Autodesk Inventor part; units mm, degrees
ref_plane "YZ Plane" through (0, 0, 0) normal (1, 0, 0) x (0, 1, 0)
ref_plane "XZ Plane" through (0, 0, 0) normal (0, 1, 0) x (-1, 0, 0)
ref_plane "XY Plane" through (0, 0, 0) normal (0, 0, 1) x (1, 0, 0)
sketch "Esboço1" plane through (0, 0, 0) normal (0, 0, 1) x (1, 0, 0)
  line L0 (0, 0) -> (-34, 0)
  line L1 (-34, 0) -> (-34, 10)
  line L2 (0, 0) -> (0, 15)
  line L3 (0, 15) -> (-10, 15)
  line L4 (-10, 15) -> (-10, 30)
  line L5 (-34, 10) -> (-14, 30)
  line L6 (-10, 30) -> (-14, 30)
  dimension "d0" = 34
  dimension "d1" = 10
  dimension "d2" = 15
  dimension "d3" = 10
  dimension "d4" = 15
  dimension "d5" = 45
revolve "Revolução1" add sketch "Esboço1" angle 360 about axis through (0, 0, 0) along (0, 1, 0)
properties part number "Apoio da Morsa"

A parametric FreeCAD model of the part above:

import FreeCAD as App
import Part
import Sketcher
Q = App.Units.Quantity


def add_polygon(sketch, points):
    """Adds a closed chain of lines whose ends are joined by coincident constraints."""
    first, n = sketch.GeometryCount, len(points)
    for a, b in zip(points, points[1:] + points[:1]):
        sketch.addGeometry(Part.LineSegment(App.Vector(*a, 0), App.Vector(*b, 0)), False)
    for i in range(n):
        sketch.addConstraint(Sketcher.Constraint("Coincident", first + i, 2, first + (i + 1) % n, 1))

doc = App.newDocument("Part")
params = doc.addObject("Spreadsheet::Sheet", "Params")
for row, (alias, value) in enumerate([
    ("sketch1_width", "34 mm"),
    ("sketch1_width2", "10 mm"),
    ("sketch1_height", "15 mm"),
    ("sketch1_width3", "4 mm"),
    ("revolution_angle", "360 deg"),
], start=1):
    params.set(f"A{row}", alias)
    params.set(f"B{row}", "=" + value)
    params.setAlias(f"B{row}", alias)

body = doc.addObject("PartDesign::Body", "Body")

# Sketch on XY plane
sketch1 = doc.addObject("Sketcher::SketchObject", "Sketch")
body.addObject(sketch1)
sketch1.AttachmentSupport = (doc.XY_Plane, [""])
sketch1.MapMode = "FlatFace"
add_polygon(sketch1, [(-34, 0), (0, 0), (0, 15), (-10, 15), (-10, 30), (-14, 30), (-34, 10)])  # lines 0-6
sketch1.addConstraint([
    Sketcher.Constraint("Horizontal", 0),
    Sketcher.Constraint("Vertical", 1),
    Sketcher.Constraint("Horizontal", 2),
    Sketcher.Constraint("Vertical", 3),
    Sketcher.Constraint("Horizontal", 4),
    Sketcher.Constraint("Vertical", 6),
    Sketcher.Constraint("Coincident", 0, 2, -1, 1),
    Sketcher.Constraint("Equal", 1, 3),
    Sketcher.Constraint("Equal", 2, 6),
    Sketcher.Constraint("DistanceX", 0, 1, 0, 2, Q("34 mm")),
    Sketcher.Constraint("DistanceX", 2, 2, 2, 1, Q("10 mm")),
    Sketcher.Constraint("DistanceY", 1, 1, 1, 2, Q("15 mm")),
    Sketcher.Constraint("DistanceX", 4, 2, 4, 1, Q("4 mm")),
])
sketch1.setExpression("Constraints[16]", "Params.sketch1_width")
sketch1.setExpression("Constraints[17]", "Params.sketch1_width2")
sketch1.setExpression("Constraints[18]", "Params.sketch1_height")
sketch1.setExpression("Constraints[19]", "Params.sketch1_width3")
revolution = doc.addObject("PartDesign::Revolution", "Revolution")
body.addObject(revolution)
revolution.Profile = sketch1
revolution.ReferenceAxis = (sketch1, ["V_Axis"])
revolution.setExpression("Angle", "Params.revolution_angle")

doc.recompute()
